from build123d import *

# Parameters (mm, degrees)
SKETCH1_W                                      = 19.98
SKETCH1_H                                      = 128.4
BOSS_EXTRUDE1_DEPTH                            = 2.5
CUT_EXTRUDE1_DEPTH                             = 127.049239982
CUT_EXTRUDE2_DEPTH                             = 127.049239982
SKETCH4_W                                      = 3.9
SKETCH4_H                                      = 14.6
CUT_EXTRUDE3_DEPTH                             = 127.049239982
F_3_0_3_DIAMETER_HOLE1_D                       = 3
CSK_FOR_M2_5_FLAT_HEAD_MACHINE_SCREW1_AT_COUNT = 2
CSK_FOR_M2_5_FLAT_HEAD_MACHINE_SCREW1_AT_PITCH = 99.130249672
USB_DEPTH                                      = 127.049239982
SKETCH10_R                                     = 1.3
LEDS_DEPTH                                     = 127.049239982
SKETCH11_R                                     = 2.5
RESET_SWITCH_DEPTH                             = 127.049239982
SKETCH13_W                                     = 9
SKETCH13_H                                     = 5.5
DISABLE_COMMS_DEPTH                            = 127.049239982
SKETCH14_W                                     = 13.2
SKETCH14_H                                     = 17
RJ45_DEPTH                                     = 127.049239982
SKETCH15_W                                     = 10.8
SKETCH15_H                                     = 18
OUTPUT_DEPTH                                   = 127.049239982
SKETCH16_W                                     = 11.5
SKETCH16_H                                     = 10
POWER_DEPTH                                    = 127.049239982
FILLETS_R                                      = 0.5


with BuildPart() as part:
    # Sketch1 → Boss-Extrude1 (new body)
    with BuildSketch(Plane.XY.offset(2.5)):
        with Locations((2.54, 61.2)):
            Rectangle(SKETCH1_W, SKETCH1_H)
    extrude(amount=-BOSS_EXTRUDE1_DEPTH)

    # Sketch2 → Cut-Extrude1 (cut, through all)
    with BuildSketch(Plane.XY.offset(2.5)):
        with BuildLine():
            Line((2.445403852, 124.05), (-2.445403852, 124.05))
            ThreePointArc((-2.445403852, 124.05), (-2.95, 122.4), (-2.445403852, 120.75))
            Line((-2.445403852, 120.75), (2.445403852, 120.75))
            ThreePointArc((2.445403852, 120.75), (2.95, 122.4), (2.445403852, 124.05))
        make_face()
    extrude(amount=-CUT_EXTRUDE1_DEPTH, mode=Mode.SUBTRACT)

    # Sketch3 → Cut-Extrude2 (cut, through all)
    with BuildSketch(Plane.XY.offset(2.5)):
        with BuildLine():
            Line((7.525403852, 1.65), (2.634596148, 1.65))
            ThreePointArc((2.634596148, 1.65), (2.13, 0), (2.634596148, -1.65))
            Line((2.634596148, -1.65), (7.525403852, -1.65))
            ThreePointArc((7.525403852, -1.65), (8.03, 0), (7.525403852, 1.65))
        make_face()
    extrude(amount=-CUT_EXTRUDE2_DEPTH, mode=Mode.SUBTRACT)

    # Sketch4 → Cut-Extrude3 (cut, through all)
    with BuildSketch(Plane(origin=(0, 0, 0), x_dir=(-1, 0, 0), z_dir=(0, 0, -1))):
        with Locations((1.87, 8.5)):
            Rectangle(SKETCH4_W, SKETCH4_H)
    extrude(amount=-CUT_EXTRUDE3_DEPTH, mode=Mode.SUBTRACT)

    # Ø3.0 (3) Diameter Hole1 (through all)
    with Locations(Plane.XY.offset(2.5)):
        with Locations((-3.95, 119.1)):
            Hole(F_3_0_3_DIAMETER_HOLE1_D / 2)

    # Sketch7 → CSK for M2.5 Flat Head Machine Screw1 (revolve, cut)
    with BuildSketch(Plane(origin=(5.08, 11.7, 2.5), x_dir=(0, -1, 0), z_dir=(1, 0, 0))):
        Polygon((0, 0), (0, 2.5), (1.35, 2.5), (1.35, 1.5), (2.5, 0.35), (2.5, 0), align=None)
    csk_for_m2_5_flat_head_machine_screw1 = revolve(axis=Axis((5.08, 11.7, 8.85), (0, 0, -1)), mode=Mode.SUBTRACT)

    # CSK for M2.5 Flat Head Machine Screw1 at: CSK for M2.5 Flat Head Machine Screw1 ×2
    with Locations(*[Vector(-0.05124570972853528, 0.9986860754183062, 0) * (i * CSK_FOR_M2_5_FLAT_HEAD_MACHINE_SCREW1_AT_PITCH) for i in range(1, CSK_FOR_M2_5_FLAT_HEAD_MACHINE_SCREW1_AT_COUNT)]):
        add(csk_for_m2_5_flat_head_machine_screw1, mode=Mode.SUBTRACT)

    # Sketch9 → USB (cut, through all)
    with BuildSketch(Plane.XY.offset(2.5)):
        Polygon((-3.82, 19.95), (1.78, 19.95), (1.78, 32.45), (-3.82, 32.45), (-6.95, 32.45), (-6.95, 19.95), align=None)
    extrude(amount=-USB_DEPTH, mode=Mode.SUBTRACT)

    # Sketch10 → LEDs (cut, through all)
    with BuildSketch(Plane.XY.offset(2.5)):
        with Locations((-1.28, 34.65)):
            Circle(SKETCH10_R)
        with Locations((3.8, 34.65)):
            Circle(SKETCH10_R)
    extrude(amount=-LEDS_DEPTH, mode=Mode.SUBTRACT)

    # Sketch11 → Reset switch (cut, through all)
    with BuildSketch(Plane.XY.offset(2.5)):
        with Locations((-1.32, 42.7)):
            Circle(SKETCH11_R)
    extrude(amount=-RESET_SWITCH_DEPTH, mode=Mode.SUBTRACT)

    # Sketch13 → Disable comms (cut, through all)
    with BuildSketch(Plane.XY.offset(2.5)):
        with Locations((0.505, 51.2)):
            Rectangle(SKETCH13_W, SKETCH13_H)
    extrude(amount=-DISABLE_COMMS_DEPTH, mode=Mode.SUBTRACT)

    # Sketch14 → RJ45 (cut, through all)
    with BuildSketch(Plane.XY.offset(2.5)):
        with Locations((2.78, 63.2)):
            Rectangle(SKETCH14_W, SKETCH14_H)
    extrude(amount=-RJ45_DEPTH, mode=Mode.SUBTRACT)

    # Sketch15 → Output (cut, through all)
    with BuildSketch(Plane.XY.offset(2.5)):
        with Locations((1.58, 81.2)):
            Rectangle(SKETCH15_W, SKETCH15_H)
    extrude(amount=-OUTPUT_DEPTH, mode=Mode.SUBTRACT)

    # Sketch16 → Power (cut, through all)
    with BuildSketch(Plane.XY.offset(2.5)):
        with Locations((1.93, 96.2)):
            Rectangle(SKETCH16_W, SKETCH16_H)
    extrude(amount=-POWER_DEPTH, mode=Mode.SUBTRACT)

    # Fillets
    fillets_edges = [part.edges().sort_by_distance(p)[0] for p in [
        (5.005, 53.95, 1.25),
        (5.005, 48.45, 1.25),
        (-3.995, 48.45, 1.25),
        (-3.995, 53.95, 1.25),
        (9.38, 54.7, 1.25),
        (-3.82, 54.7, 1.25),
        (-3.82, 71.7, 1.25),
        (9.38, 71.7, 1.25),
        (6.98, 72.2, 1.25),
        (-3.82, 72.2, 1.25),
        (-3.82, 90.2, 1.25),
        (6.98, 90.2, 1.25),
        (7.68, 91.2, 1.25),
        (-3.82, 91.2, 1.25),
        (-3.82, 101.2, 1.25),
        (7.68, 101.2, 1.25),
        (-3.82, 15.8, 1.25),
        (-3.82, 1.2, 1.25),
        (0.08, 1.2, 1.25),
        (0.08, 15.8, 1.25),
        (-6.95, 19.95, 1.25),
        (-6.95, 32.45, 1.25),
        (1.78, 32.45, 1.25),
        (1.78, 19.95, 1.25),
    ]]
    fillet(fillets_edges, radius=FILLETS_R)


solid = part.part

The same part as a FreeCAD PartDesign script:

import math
import FreeCAD as App
import Part
import Sketcher
Q = App.Units.Quantity


def edges_at(feature, points):
    """Names of the edges that pass closest to the given points."""
    edges = feature.Shape.Edges
    near = lambda p: min(range(len(edges)), key=lambda i: edges[i].distToShape(Part.Vertex(*p))[0])
    return sorted({f"Edge{near(p) + 1}" for p in points})


def add_polygon(sketch, points):
    """Adds a closed chain of lines whose ends are joined by coincident constraints."""
    first, n = sketch.GeometryCount, len(points)
    for a, b in zip(points, points[1:] + points[:1]):
        sketch.addGeometry(Part.LineSegment(App.Vector(*a, 0), App.Vector(*b, 0)), False)
    for i in range(n):
        sketch.addConstraint(Sketcher.Constraint("Coincident", first + i, 2, first + (i + 1) % n, 1))

doc = App.newDocument("Part")
body = doc.addObject("PartDesign::Body", "Body")

# Sketch on XY plane
sketch1 = body.newObject("Sketcher::SketchObject", "Sketch")
sketch1.AttachmentSupport = (doc.getObject("XY_Plane"), [""])
sketch1.MapMode = "FlatFace"
sketch1.AttachmentOffset = App.Placement(App.Vector(0, 0, 2.5), App.Rotation())
add_polygon(sketch1, [(-7, 125), (-7, -3), (13, -3), (13, 125)])  # lines 0-3
sketch1.addConstraint([
    Sketcher.Constraint("Vertical", 0),
    Sketcher.Constraint("Horizontal", 1),
    Sketcher.Constraint("Vertical", 2),
    Sketcher.Constraint("Horizontal", 3),
    Sketcher.Constraint("DistanceY", 0, 2, 0, 1, Q("128.4 mm")),
    Sketcher.Constraint("DistanceY", 0, 2, -1, 1, Q("3 mm")),
    Sketcher.Constraint("DistanceX", 1, 1, 1, 2, Q("19.98 mm")),
    Sketcher.Constraint("DistanceX", 0, 2, -1, 1, Q("7.45 mm")),
])
pad1 = body.newObject("PartDesign::Pad", "Pad")
pad1.Profile = sketch1
pad1.Length = 2.5
pad1.Reversed = True

# Sketch on XY plane
sketch2 = body.newObject("Sketcher::SketchObject", "Sketch001")
sketch2.AttachmentSupport = (doc.getObject("XY_Plane"), [""])
sketch2.MapMode = "FlatFace"
sketch2.AttachmentOffset = App.Placement(App.Vector(0, 0, 2.5), App.Rotation())
sketch2.addGeometry([
    Part.LineSegment(App.Vector(2.4, 124, 0), App.Vector(-2.4, 124, 0)),
    Part.ArcOfCircle(Part.Circle(App.Vector(0, 122.4, 0), App.Vector(0, 0, 1), 2.9), math.radians(146), math.radians(214)),
    Part.LineSegment(App.Vector(-2.4, 120.8, 0), App.Vector(2.4, 120.8, 0)),
    Part.ArcOfCircle(Part.Circle(App.Vector(0, 122.4, 0), App.Vector(0, 0, 1), 2.9), math.radians(-34), math.radians(34)),
], False)
sketch2.addConstraint([
    Sketcher.Constraint("Coincident", 0, 2, 1, 1),
    Sketcher.Constraint("Coincident", 1, 2, 2, 1),
    Sketcher.Constraint("Coincident", 2, 2, 3, 1),
    Sketcher.Constraint("Coincident", 3, 2, 0, 1),
    Sketcher.Constraint("Horizontal", 0),
    Sketcher.Constraint("Horizontal", 2),
    Sketcher.Constraint("Coincident", 3, 3, 1, 3),
    Sketcher.Constraint("Equal", 1, 3),
    Sketcher.Constraint("PointOnObject", 1, 3, -2),
    Sketcher.Constraint("Vertical", 0, 2, 1, 2),
    Sketcher.Constraint("Radius", 1, Q("2.95 mm")),
    Sketcher.Constraint("DistanceY", -1, 1, 1, 3, Q("122.4 mm")),
    Sketcher.Constraint("DistanceY", 1, 2, 0, 2, Q("3.3 mm")),
])
pocket1 = body.newObject("PartDesign::Pocket", "Pocket")
pocket1.Profile = sketch2
pocket1.Type = "ThroughAll"

# Sketch on XY plane
sketch3 = body.newObject("Sketcher::SketchObject", "Sketch002")
sketch3.AttachmentSupport = (doc.getObject("XY_Plane"), [""])
sketch3.MapMode = "FlatFace"
sketch3.AttachmentOffset = App.Placement(App.Vector(0, 0, 2.5), App.Rotation())
sketch3.addGeometry([
    Part.LineSegment(App.Vector(7.5, 1.6, 0), App.Vector(2.6, 1.6, 0)),
    Part.ArcOfCircle(Part.Circle(App.Vector(5.1, 0, 0), App.Vector(0, 0, 1), 2.9), math.radians(146), math.radians(214)),
    Part.LineSegment(App.Vector(2.6, -1.6, 0), App.Vector(7.5, -1.6, 0)),
    Part.ArcOfCircle(Part.Circle(App.Vector(5.1, 0, 0), App.Vector(0, 0, 1), 2.9), math.radians(-34), math.radians(34)),
], False)
sketch3.addConstraint([
    Sketcher.Constraint("Coincident", 0, 2, 1, 1),
    Sketcher.Constraint("Coincident", 1, 2, 2, 1),
    Sketcher.Constraint("Coincident", 2, 2, 3, 1),
    Sketcher.Constraint("Coincident", 3, 2, 0, 1),
    Sketcher.Constraint("Horizontal", 0),
    Sketcher.Constraint("Horizontal", 2),
    Sketcher.Constraint("Coincident", 3, 3, 1, 3),
    Sketcher.Constraint("Equal", 1, 3),
    Sketcher.Constraint("Symmetric", 0, 2, 1, 2, -1),
    Sketcher.Constraint("Radius", 1, Q("2.95 mm")),
    Sketcher.Constraint("DistanceY", 1, 2, 0, 2, Q("3.3 mm")),
    Sketcher.Constraint("DistanceX", -1, 1, 1, 3, Q("5.08 mm")),
])
pocket2 = body.newObject("PartDesign::Pocket", "Pocket001")
pocket2.Profile = sketch3
pocket2.Type = "ThroughAll"

# Sketch on XY plane
sketch4 = body.newObject("Sketcher::SketchObject", "Sketch003")
sketch4.AttachmentSupport = (doc.getObject("XY_Plane"), [""])
sketch4.MapMode = "FlatFace"
add_polygon(sketch4, [(0.1, 15.8), (0.1, 1.2), (-3.8, 1.2), (-3.8, 15.8)])  # lines 0-3
sketch4.addConstraint([
    Sketcher.Constraint("Vertical", 0),
    Sketcher.Constraint("Horizontal", 1),
    Sketcher.Constraint("Vertical", 2),
    Sketcher.Constraint("Horizontal", 3),
    Sketcher.Constraint("DistanceX", 1, 2, 1, 1, Q("3.9 mm")),
    Sketcher.Constraint("DistanceY", 0, 2, 0, 1, Q("14.6 mm")),
    Sketcher.Constraint("DistanceY", -1, 1, 0, 2, Q("1.2 mm")),
    Sketcher.Constraint("DistanceX", -1, 1, 0, 2, Q("0.08 mm")),
])
pocket3 = body.newObject("PartDesign::Pocket", "Pocket002")
pocket3.Profile = sketch4
pocket3.Type = "ThroughAll"
pocket3.Reversed = True

# Sketch on XY plane
sketch5 = body.newObject("Sketcher::SketchObject", "Sketch004")
sketch5.AttachmentSupport = (doc.getObject("XY_Plane"), [""])
sketch5.MapMode = "FlatFace"
sketch5.AttachmentOffset = App.Placement(App.Vector(0, 0, 2.5), App.Rotation())
sketch5.addGeometry(Part.Circle(App.Vector(-4, 119.1, 0), App.Vector(0, 0, 1), 1.5), False)
sketch5.addConstraint([
    Sketcher.Constraint("Diameter", 0, Q("3 mm")),
    Sketcher.Constraint("DistanceY", -1, 1, 0, 3, Q("119.1 mm")),
    Sketcher.Constraint("DistanceX", 0, 3, -1, 1, Q("3.95 mm")),
])
doc.recompute()
hole = body.newObject("PartDesign::Hole", "Hole")
hole.Profile = sketch5
hole.ThreadType = "None"
hole.Diameter = 3
hole.DepthType = "ThroughAll"

# Sketch on YZ plane
sketch6 = body.newObject("Sketcher::SketchObject", "Sketch005")
sketch6.AttachmentSupport = (doc.getObject("YZ_Plane"), [""])
sketch6.MapMode = "FlatFace"
sketch6.AttachmentOffset = App.Placement(App.Vector(0, 0, 5.08), App.Rotation())
add_polygon(sketch6, [(11.7, 0), (11.7, 2.5), (9.2, 2.5), (9.2, 2.15), (10.35, 1), (10.35, 0)])  # lines 0-5
sketch6.addGeometry(Part.LineSegment(App.Vector(11.7, 2.5, 0), App.Vector(11.7, 0, 0)), True)  # axis
sketch6.addConstraint([
    Sketcher.Constraint("Vertical", 0),
    Sketcher.Constraint("Horizontal", 1),
    Sketcher.Constraint("Vertical", 2),
    Sketcher.Constraint("Vertical", 4),
    Sketcher.Constraint("Horizontal", 5),
    Sketcher.Constraint("Vertical", 6),
    Sketcher.Constraint("Coincident", 6, 1, 0, 2),
    Sketcher.Constraint("PointOnObject", 4, 2, -1),
    Sketcher.Constraint("PointOnObject", 6, 2, -1),
    Sketcher.Constraint("Equal", 1, 0),
    Sketcher.Constraint("DistanceY", 4, 2, 4, 1, Q("1 mm")),
    Sketcher.Constraint("Angle", 3, Q("-45 deg")),
    Sketcher.Constraint("DistanceX", 1, 2, 1, 1, Q("2.5 mm")),
    Sketcher.Constraint("DistanceX", 5, 1, 5, 2, Q("1.35 mm")),
    Sketcher.Constraint("DistanceX", -1, 1, 0, 2, Q("11.7 mm")),
])
groove = body.newObject("PartDesign::Groove", "Groove")
groove.Profile = sketch6
groove.ReferenceAxis = (sketch6, ["Axis0"])
groove.Angle = 360
doc.recompute()

datumline = body.newObject("PartDesign::Line", "DatumLine")
datumline.Placement = App.Placement(App.Vector(0, 0, 0), App.Rotation(App.Vector(0, 0, 1), App.Vector(-0.05124571, 0.998686075, 0)))
linearpattern = body.newObject("PartDesign::LinearPattern", "LinearPattern")
linearpattern.Originals = [groove]
linearpattern.Direction = (datumline, [""])
linearpattern.Mode = "offset"
linearpattern.Offset = 99.13025
linearpattern.Occurrences = 2
body.Tip = linearpattern

# Sketch on XY plane
sketch7 = body.newObject("Sketcher::SketchObject", "Sketch006")
sketch7.AttachmentSupport = (doc.getObject("XY_Plane"), [""])
sketch7.MapMode = "FlatFace"
sketch7.AttachmentOffset = App.Placement(App.Vector(0, 0, 2.5), App.Rotation())
add_polygon(sketch7, [(2, 20), (2, 32), (-7, 32), (-7, 20)])  # lines 0-3
sketch7.addConstraint([
    Sketcher.Constraint("Vertical", 0),
    Sketcher.Constraint("Horizontal", 1),
    Sketcher.Constraint("Vertical", 2),
    Sketcher.Constraint("Horizontal", 3),
    Sketcher.Constraint("DistanceY", 0, 1, 0, 2, Q("12.5 mm")),
    Sketcher.Constraint("DistanceX", 1, 2, 1, 1, Q("8.73 mm")),
    Sketcher.Constraint("DistanceX", -1, 1, 0, 2, Q("1.78 mm")),
    Sketcher.Constraint("DistanceY", -1, 1, 0, 2, Q("32.45 mm")),
])
pocket4 = body.newObject("PartDesign::Pocket", "Pocket003")
pocket4.Profile = sketch7
pocket4.Type = "ThroughAll"

# Sketch on XY plane
sketch8 = body.newObject("Sketcher::SketchObject", "Sketch007")
sketch8.AttachmentSupport = (doc.getObject("XY_Plane"), [""])
sketch8.MapMode = "FlatFace"
sketch8.AttachmentOffset = App.Placement(App.Vector(0, 0, 2.5), App.Rotation())
sketch8.addGeometry([
    Part.Circle(App.Vector(-1.3, 34.6, 0), App.Vector(0, 0, 1), 1.3),
    Part.Circle(App.Vector(3.8, 34.6, 0), App.Vector(0, 0, 1), 1.3),
], False)
sketch8.addConstraint([
    Sketcher.Constraint("Equal", 0, 1),
    Sketcher.Constraint("Horizontal", 0, 3, 1, 3),
    Sketcher.Constraint("Diameter", 0, Q("2.6 mm")),
    Sketcher.Constraint("DistanceX", -1, 1, 1, 3, Q("3.8 mm")),
    Sketcher.Constraint("DistanceX", 0, 3, -1, 1, Q("1.28 mm")),
    Sketcher.Constraint("DistanceY", -1, 1, 0, 3, Q("34.65 mm")),
])
pocket5 = body.newObject("PartDesign::Pocket", "Pocket004")
pocket5.Profile = sketch8
pocket5.Type = "ThroughAll"

# Sketch on XY plane
sketch9 = body.newObject("Sketcher::SketchObject", "Sketch008")
sketch9.AttachmentSupport = (doc.getObject("XY_Plane"), [""])
sketch9.MapMode = "FlatFace"
sketch9.AttachmentOffset = App.Placement(App.Vector(0, 0, 2.5), App.Rotation())
sketch9.addGeometry(Part.Circle(App.Vector(-1.3, 42.7, 0), App.Vector(0, 0, 1), 2.5), False)
sketch9.addConstraint([
    Sketcher.Constraint("Diameter", 0, Q("5 mm")),
    Sketcher.Constraint("DistanceY", -1, 1, 0, 3, Q("42.7 mm")),
    Sketcher.Constraint("DistanceX", 0, 3, -1, 1, Q("1.32 mm")),
])
pocket6 = body.newObject("PartDesign::Pocket", "Pocket005")
pocket6.Profile = sketch9
pocket6.Type = "ThroughAll"

# Sketch on XY plane
sketch10 = body.newObject("Sketcher::SketchObject", "Sketch009")
sketch10.AttachmentSupport = (doc.getObject("XY_Plane"), [""])
sketch10.MapMode = "FlatFace"
sketch10.AttachmentOffset = App.Placement(App.Vector(0, 0, 2.5), App.Rotation())
add_polygon(sketch10, [(-4, 54), (-4, 48), (5, 48), (5, 54)])  # lines 0-3
sketch10.addConstraint([
    Sketcher.Constraint("Vertical", 0),
    Sketcher.Constraint("Horizontal", 1),
    Sketcher.Constraint("Vertical", 2),
    Sketcher.Constraint("Horizontal", 3),
    Sketcher.Constraint("DistanceX", 1, 1, 1, 2, Q("9 mm")),
    Sketcher.Constraint("DistanceY", 0, 2, 0, 1, Q("5.5 mm")),
    Sketcher.Constraint("DistanceY", -1, 1, 0, 2, Q("48.45 mm")),
    Sketcher.Constraint("DistanceX", 0, 2, -1, 1, Q("3.995 mm")),
])
pocket7 = body.newObject("PartDesign::Pocket", "Pocket006")
pocket7.Profile = sketch10
pocket7.Type = "ThroughAll"

# Sketch on XY plane
sketch11 = body.newObject("Sketcher::SketchObject", "Sketch010")
sketch11.AttachmentSupport = (doc.getObject("XY_Plane"), [""])
sketch11.MapMode = "FlatFace"
sketch11.AttachmentOffset = App.Placement(App.Vector(0, 0, 2.5), App.Rotation())
add_polygon(sketch11, [(-4, 72), (-4, 55), (9, 55), (9, 72)])  # lines 0-3
sketch11.addConstraint([
    Sketcher.Constraint("Vertical", 0),
    Sketcher.Constraint("Horizontal", 1),
    Sketcher.Constraint("Vertical", 2),
    Sketcher.Constraint("Horizontal", 3),
    Sketcher.Constraint("DistanceY", 0, 2, 0, 1, Q("17 mm")),
    Sketcher.Constraint("DistanceX", 1, 1, 1, 2, Q("13.2 mm")),
    Sketcher.Constraint("DistanceY", -1, 1, 0, 2, Q("54.7 mm")),
    Sketcher.Constraint("DistanceX", 0, 2, -1, 1, Q("3.82 mm")),
])
pocket8 = body.newObject("PartDesign::Pocket", "Pocket007")
pocket8.Profile = sketch11
pocket8.Type = "ThroughAll"

# Sketch on XY plane
sketch12 = body.newObject("Sketcher::SketchObject", "Sketch011")
sketch12.AttachmentSupport = (doc.getObject("XY_Plane"), [""])
sketch12.MapMode = "FlatFace"
sketch12.AttachmentOffset = App.Placement(App.Vector(0, 0, 2.5), App.Rotation())
add_polygon(sketch12, [(-4, 90), (-4, 72), (7, 72), (7, 90)])  # lines 0-3
sketch12.addConstraint([
    Sketcher.Constraint("Vertical", 0),
    Sketcher.Constraint("Horizontal", 1),
    Sketcher.Constraint("Vertical", 2),
    Sketcher.Constraint("Horizontal", 3),
    Sketcher.Constraint("DistanceY", 0, 2, 0, 1, Q("18 mm")),
    Sketcher.Constraint("DistanceX", 1, 1, 1, 2, Q("10.8 mm")),
    Sketcher.Constraint("DistanceY", -1, 1, 0, 2, Q("72.2 mm")),
    Sketcher.Constraint("DistanceX", 0, 2, -1, 1, Q("3.82 mm")),
])
pocket9 = body.newObject("PartDesign::Pocket", "Pocket008")
pocket9.Profile = sketch12
pocket9.Type = "ThroughAll"

# Sketch on XY plane
sketch13 = body.newObject("Sketcher::SketchObject", "Sketch012")
sketch13.AttachmentSupport = (doc.getObject("XY_Plane"), [""])
sketch13.MapMode = "FlatFace"
sketch13.AttachmentOffset = App.Placement(App.Vector(0, 0, 2.5), App.Rotation())
add_polygon(sketch13, [(-4, 101), (-4, 91), (8, 91), (8, 101)])  # lines 0-3
sketch13.addConstraint([
    Sketcher.Constraint("Vertical", 0),
    Sketcher.Constraint("Horizontal", 1),
    Sketcher.Constraint("Vertical", 2),
    Sketcher.Constraint("Horizontal", 3),
    Sketcher.Constraint("DistanceY", 0, 2, 0, 1, Q("10 mm")),
    Sketcher.Constraint("DistanceX", 1, 1, 1, 2, Q("11.5 mm")),
    Sketcher.Constraint("DistanceY", -1, 1, 0, 2, Q("91.2 mm")),
    Sketcher.Constraint("DistanceX", 0, 2, -1, 1, Q("3.82 mm")),
])
pocket10 = body.newObject("PartDesign::Pocket", "Pocket009")
pocket10.Profile = sketch13
pocket10.Type = "ThroughAll"
doc.recompute()

fillet = body.newObject("PartDesign::Fillet", "Fillet")
fillet.Base = (pocket10, edges_at(pocket10, [
    (5.005, 53.95, 1.25),
    (5.005, 48.45, 1.25),
    (-3.995, 48.45, 1.25),
    (-3.995, 53.95, 1.25),
    (9.38, 54.7, 1.25),
    (-3.82, 54.7, 1.25),
    (-3.82, 71.7, 1.25),
    (9.38, 71.7, 1.25),
    (6.98, 72.2, 1.25),
    (-3.82, 72.2, 1.25),
    (-3.82, 90.2, 1.25),
    (6.98, 90.2, 1.25),
    (7.68, 91.2, 1.25),
    (-3.82, 91.2, 1.25),
    (-3.82, 101.2, 1.25),
    (7.68, 101.2, 1.25),
    (-3.82, 15.8, 1.25),
    (-3.82, 1.2, 1.25),
    (0.08, 1.2, 1.25),
    (0.08, 15.8, 1.25),
    (-6.95, 19.95, 1.25),
    (-6.95, 32.45, 1.25),
    (1.78, 32.45, 1.25),
    (1.78, 19.95, 1.25),
]))
fillet.Radius = 0.5

doc.recompute()
